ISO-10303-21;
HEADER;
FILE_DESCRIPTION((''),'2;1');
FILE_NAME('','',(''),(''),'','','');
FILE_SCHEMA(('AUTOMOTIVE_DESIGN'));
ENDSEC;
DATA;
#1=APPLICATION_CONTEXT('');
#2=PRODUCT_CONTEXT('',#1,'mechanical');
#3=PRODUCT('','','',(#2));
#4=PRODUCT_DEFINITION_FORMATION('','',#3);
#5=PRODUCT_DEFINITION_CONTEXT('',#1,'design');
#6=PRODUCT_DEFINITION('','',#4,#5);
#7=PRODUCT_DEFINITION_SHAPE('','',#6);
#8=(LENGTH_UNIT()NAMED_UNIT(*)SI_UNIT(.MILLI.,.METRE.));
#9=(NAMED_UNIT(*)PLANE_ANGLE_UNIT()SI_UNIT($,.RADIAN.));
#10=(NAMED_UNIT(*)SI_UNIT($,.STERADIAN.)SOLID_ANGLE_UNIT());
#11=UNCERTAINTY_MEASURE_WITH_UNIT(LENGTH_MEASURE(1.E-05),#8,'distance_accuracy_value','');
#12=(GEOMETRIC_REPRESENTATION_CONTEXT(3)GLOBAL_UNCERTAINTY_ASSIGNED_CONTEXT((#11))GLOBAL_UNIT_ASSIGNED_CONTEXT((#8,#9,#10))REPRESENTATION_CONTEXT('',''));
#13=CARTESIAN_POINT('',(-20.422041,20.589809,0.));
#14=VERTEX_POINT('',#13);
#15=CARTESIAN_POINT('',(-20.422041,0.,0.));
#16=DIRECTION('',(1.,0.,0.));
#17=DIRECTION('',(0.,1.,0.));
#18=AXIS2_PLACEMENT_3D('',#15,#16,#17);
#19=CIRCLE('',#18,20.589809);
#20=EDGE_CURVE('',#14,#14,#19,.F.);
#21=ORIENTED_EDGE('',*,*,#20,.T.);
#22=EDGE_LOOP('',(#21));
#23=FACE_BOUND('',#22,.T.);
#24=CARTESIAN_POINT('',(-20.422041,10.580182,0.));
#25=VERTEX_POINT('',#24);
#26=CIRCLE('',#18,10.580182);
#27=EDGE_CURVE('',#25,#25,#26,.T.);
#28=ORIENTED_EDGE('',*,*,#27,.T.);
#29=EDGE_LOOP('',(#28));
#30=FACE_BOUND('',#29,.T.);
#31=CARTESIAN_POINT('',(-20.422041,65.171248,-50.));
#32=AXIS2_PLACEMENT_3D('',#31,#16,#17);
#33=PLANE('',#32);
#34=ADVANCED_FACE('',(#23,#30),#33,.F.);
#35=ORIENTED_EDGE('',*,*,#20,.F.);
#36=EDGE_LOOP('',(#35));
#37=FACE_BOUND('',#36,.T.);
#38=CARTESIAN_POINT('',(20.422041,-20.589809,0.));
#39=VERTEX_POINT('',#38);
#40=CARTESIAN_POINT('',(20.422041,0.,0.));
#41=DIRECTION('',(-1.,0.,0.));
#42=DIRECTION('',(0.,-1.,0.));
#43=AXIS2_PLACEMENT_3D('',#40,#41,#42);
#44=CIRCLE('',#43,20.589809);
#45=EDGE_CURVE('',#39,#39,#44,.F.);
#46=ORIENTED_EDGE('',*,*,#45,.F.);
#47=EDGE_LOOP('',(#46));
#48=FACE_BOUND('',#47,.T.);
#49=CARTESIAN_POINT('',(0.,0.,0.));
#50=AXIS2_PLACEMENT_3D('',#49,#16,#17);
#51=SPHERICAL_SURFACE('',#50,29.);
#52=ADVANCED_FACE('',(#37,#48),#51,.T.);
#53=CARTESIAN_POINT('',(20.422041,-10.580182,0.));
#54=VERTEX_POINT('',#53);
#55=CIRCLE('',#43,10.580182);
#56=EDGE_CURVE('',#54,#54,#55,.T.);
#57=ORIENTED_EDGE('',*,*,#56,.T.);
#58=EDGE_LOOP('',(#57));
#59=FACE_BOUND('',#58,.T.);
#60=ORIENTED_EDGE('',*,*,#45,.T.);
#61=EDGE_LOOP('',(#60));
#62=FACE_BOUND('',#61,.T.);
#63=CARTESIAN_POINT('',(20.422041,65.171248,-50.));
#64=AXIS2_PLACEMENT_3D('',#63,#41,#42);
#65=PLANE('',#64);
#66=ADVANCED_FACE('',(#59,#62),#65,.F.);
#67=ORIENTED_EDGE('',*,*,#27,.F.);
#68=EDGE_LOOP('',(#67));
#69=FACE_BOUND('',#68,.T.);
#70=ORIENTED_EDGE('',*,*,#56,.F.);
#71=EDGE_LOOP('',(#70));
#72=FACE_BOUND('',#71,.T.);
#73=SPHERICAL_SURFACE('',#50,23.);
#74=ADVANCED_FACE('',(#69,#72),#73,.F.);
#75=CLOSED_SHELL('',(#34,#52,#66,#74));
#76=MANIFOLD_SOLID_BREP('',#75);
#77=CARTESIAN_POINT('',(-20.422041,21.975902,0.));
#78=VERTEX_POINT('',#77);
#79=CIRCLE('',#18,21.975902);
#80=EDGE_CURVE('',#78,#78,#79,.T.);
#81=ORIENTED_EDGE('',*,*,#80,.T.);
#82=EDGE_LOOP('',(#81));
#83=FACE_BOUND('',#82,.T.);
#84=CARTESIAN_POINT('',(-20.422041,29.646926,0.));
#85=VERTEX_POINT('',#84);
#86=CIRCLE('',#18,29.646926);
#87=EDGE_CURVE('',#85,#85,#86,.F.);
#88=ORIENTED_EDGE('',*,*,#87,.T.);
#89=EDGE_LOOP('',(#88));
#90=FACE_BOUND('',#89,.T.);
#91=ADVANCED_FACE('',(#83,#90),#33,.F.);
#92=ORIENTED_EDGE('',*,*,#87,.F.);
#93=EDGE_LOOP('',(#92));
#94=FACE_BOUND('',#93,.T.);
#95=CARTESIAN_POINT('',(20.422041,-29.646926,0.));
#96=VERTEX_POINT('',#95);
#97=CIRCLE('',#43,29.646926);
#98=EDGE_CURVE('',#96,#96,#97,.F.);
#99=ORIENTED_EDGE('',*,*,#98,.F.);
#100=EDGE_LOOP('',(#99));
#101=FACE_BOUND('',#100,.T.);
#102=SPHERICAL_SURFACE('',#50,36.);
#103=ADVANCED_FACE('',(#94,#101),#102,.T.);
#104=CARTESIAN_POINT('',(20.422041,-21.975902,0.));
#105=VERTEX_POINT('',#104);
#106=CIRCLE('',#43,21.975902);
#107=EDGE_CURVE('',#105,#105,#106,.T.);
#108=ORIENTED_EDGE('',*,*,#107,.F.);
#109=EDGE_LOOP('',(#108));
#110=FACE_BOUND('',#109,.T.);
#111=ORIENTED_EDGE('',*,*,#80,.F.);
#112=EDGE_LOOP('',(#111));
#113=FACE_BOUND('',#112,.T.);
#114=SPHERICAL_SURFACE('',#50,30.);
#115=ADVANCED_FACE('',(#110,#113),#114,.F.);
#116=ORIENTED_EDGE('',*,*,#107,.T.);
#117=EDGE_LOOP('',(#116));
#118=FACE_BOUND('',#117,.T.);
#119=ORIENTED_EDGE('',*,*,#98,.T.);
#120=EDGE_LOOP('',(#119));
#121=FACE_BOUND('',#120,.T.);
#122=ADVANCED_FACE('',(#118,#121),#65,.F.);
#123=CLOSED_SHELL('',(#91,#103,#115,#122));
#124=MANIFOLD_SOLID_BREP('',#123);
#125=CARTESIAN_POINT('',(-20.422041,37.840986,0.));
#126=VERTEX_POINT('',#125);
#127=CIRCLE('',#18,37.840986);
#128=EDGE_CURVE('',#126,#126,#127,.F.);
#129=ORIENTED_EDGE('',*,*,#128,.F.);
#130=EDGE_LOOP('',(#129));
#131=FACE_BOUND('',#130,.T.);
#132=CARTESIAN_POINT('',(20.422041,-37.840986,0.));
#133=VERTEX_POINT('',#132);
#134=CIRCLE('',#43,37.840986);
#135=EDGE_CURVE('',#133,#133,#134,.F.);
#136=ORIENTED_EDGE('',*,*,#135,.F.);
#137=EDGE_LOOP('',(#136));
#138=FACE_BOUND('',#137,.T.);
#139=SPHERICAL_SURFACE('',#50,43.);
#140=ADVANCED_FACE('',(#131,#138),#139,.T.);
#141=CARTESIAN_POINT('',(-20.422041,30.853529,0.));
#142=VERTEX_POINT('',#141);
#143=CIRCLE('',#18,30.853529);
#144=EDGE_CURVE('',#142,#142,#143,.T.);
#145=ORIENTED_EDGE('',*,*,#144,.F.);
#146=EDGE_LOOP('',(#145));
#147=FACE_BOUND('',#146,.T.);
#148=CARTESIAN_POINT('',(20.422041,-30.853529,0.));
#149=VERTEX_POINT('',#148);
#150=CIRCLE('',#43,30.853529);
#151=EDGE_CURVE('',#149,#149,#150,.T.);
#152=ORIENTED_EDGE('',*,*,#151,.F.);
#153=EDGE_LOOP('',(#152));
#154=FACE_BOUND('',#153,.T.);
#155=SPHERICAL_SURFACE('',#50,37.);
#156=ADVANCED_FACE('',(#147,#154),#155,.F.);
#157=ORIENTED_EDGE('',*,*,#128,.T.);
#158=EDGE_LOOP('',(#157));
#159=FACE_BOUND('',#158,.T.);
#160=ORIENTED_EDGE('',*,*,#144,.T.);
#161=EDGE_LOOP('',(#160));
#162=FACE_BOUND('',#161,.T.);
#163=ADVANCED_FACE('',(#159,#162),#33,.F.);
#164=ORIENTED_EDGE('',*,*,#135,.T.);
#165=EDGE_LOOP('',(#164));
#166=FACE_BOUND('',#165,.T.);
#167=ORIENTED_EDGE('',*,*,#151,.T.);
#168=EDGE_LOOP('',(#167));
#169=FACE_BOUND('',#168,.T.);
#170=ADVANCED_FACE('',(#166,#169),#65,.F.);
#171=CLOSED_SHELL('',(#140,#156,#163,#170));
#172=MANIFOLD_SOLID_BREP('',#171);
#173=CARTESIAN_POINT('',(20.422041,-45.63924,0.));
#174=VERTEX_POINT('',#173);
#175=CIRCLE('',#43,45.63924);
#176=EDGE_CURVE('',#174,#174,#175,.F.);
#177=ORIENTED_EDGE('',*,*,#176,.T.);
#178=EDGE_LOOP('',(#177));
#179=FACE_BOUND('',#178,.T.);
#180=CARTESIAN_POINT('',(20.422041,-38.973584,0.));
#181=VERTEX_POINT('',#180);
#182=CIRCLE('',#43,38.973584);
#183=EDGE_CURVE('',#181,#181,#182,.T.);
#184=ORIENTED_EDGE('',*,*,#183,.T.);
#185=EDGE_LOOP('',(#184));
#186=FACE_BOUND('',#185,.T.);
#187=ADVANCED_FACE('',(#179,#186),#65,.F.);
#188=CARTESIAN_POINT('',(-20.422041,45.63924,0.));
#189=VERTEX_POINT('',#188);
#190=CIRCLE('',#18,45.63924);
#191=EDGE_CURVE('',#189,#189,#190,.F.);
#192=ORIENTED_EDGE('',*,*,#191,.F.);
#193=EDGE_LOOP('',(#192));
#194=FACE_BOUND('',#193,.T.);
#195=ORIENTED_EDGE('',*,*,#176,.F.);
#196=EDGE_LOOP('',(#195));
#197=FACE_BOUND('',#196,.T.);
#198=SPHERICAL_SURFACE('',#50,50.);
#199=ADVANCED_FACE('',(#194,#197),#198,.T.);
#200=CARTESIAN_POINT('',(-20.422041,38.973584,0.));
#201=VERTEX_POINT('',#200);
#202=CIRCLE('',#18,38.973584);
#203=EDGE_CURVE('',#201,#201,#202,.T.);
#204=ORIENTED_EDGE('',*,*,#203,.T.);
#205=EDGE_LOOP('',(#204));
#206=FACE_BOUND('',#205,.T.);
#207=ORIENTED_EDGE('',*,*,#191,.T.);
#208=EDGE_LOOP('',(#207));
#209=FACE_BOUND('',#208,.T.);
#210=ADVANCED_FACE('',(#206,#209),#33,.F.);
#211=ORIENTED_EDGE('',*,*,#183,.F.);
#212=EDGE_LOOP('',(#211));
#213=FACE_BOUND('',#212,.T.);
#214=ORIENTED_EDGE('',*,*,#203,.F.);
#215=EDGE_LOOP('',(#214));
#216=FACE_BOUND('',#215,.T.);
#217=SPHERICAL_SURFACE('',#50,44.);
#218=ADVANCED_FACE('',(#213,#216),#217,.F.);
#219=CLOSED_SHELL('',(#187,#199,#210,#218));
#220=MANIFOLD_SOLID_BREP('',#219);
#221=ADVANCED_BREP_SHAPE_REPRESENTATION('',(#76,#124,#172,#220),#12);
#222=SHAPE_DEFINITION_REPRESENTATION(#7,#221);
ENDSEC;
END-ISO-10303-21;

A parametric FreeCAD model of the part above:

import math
import FreeCAD as App
import Part
import Sketcher

V = App.Vector
Q = App.Units.Quantity


def add_polygon(sketch, points):
    """Adds a closed chain of lines whose ends are joined by coincident constraints."""
    first, n = sketch.GeometryCount, len(points)
    for a, b in zip(points, points[1:] + points[:1]):
        sketch.addGeometry(Part.LineSegment(App.Vector(*a, 0), App.Vector(*b, 0)), False)
    for i in range(n):
        sketch.addConstraint(Sketcher.Constraint("Coincident", first + i, 2, first + (i + 1) % n, 1))

doc = App.newDocument("Part")
body = doc.addObject("PartDesign::Body", "Body")
body.AllowCompound = True

# Sketch on XY plane
sketch1 = body.newObject("Sketcher::SketchObject", "Sketch")
sketch1.AttachmentSupport = (doc.getObject("XY_Plane"), [""])
sketch1.MapMode = "FlatFace"
sketch1.addGeometry([
    Part.LineSegment(V(0, 44, 0), V(0, 50, 0)),  # 0
    Part.ArcOfCircle(Part.Circle(V(0, 0, 0), V(0, 0, 1), 50), math.radians(90), math.radians(270)),  # 1
    Part.LineSegment(V(0, -50, 0), V(0, -44, 0)),  # 2
    Part.ArcOfCircle(Part.Circle(V(0, 0, 0), V(0, 0, 1), 44), math.radians(90), math.radians(270)),  # 3
    Part.LineSegment(V(0, 37, 0), V(0, 43, 0)),  # 4
    Part.ArcOfCircle(Part.Circle(V(0, 0, 0), V(0, 0, 1), 43), math.radians(90), math.radians(270)),  # 5
    Part.LineSegment(V(0, -43, 0), V(0, -37, 0)),  # 6
    Part.ArcOfCircle(Part.Circle(V(0, 0, 0), V(0, 0, 1), 37), math.radians(90), math.radians(270)),  # 7
    Part.LineSegment(V(0, 30, 0), V(0, 36, 0)),  # 8
    Part.ArcOfCircle(Part.Circle(V(0, 0, 0), V(0, 0, 1), 36), math.radians(90), math.radians(270)),  # 9
    Part.LineSegment(V(0, -36, 0), V(0, -30, 0)),  # 10
    Part.ArcOfCircle(Part.Circle(V(0, 0, 0), V(0, 0, 1), 30), math.radians(90), math.radians(270)),  # 11
    Part.LineSegment(V(0, 23, 0), V(0, 29, 0)),  # 12
    Part.ArcOfCircle(Part.Circle(V(0, 0, 0), V(0, 0, 1), 29), math.radians(90), math.radians(270)),  # 13
    Part.LineSegment(V(0, -29, 0), V(0, -23, 0)),  # 14
    Part.ArcOfCircle(Part.Circle(V(0, 0, 0), V(0, 0, 1), 23), math.radians(90), math.radians(270)),  # 15
], False)
sketch1.addConstraint([
    Sketcher.Constraint("Coincident", 0, 2, 1, 1),
    Sketcher.Constraint("Coincident", 1, 2, 2, 1),
    Sketcher.Constraint("Coincident", 2, 2, 3, 2),
    Sketcher.Constraint("Coincident", 3, 1, 0, 1),
    Sketcher.Constraint("Coincident", 4, 2, 5, 1),
    Sketcher.Constraint("Coincident", 5, 2, 6, 1),
    Sketcher.Constraint("Coincident", 6, 2, 7, 2),
    Sketcher.Constraint("Coincident", 7, 1, 4, 1),
    Sketcher.Constraint("Coincident", 8, 2, 9, 1),
    Sketcher.Constraint("Coincident", 9, 2, 10, 1),
    Sketcher.Constraint("Coincident", 10, 2, 11, 2),
    Sketcher.Constraint("Coincident", 11, 1, 8, 1),
    Sketcher.Constraint("Coincident", 12, 2, 13, 1),
    Sketcher.Constraint("Coincident", 13, 2, 14, 1),
    Sketcher.Constraint("Coincident", 14, 2, 15, 2),
    Sketcher.Constraint("Coincident", 15, 1, 12, 1),
    Sketcher.Constraint("Vertical", 0),
    Sketcher.Constraint("Vertical", 2),
    Sketcher.Constraint("Vertical", 4),
    Sketcher.Constraint("Vertical", 6),
    Sketcher.Constraint("Vertical", 8),
    Sketcher.Constraint("Vertical", 10),
    Sketcher.Constraint("Vertical", 12),
    Sketcher.Constraint("Vertical", 14),
    Sketcher.Constraint("Coincident", 1, 3, -1, 1),
    Sketcher.Constraint("Coincident", 3, 3, -1, 1),
    Sketcher.Constraint("Coincident", 5, 3, -1, 1),
    Sketcher.Constraint("Coincident", 7, 3, -1, 1),
    Sketcher.Constraint("Coincident", 9, 3, -1, 1),
    Sketcher.Constraint("Coincident", 11, 3, -1, 1),
    Sketcher.Constraint("Coincident", 13, 3, -1, 1),
    Sketcher.Constraint("Coincident", 15, 3, -1, 1),
    Sketcher.Constraint("PointOnObject", 0, 2, -2),
    Sketcher.Constraint("PointOnObject", 1, 2, -2),
    Sketcher.Constraint("PointOnObject", 4, 2, -2),
    Sketcher.Constraint("PointOnObject", 5, 2, -2),
    Sketcher.Constraint("PointOnObject", 8, 2, -2),
    Sketcher.Constraint("PointOnObject", 9, 2, -2),
    Sketcher.Constraint("PointOnObject", 12, 2, -2),
    Sketcher.Constraint("PointOnObject", 13, 2, -2),
    Sketcher.Constraint("Equal", 2, 4),
    Sketcher.Constraint("Equal", 6, 8),
    Sketcher.Constraint("Equal", 10, 12),
    Sketcher.Constraint("Radius", 1, Q("50 mm")),
    Sketcher.Constraint("Radius", 3, Q("44 mm")),
    Sketcher.Constraint("Radius", 5, Q("43 mm")),
    Sketcher.Constraint("Radius", 9, Q("36 mm")),
    Sketcher.Constraint("Radius", 13, Q("29 mm")),
])
revolution = body.newObject("PartDesign::Revolution", "Revolution")
revolution.Profile = sketch1
revolution.ReferenceAxis = (sketch1, ["V_Axis"])
revolution.Angle = 360

# Sketch on XY plane
sketch2 = body.newObject("Sketcher::SketchObject", "Sketch001")
sketch2.AttachmentSupport = (doc.getObject("XY_Plane"), [""])
sketch2.MapMode = "FlatFace"
add_polygon(sketch2, [(-64, 65), (-64, -56), (-20, -56), (-20, 65)])  # lines 0-3
add_polygon(sketch2, [(20, 65), (20, -56), (64, -56), (64, 65)])  # lines 4-7
sketch2.addConstraint([
    Sketcher.Constraint("Vertical", 0),
    Sketcher.Constraint("Horizontal", 1),
    Sketcher.Constraint("Vertical", 2),
    Sketcher.Constraint("Horizontal", 3),
    Sketcher.Constraint("Vertical", 4),
    Sketcher.Constraint("Horizontal", 5),
    Sketcher.Constraint("Vertical", 6),
    Sketcher.Constraint("Horizontal", 7),
    Sketcher.Constraint("Symmetric", 1, 2, 4, 2, -2),
    Sketcher.Constraint("Symmetric", 3, 2, 6, 2, -2),
    Sketcher.Constraint("DistanceY", 0, 2, 0, 1, Q("120.900362 mm")),
    Sketcher.Constraint("DistanceX", 1, 1, 1, 2, Q("43.620256 mm")),
    Sketcher.Constraint("DistanceX", 1, 2, -1, 1, Q("20.422041 mm")),
    Sketcher.Constraint("DistanceY", 0, 2, -1, 1, Q("55.729114 mm")),
])
pocket1 = body.newObject("PartDesign::Pocket", "Pocket")
pocket1.Profile = sketch2
pocket1.Type = "ThroughAll"
pocket1.Midplane = True

doc.recompute()
